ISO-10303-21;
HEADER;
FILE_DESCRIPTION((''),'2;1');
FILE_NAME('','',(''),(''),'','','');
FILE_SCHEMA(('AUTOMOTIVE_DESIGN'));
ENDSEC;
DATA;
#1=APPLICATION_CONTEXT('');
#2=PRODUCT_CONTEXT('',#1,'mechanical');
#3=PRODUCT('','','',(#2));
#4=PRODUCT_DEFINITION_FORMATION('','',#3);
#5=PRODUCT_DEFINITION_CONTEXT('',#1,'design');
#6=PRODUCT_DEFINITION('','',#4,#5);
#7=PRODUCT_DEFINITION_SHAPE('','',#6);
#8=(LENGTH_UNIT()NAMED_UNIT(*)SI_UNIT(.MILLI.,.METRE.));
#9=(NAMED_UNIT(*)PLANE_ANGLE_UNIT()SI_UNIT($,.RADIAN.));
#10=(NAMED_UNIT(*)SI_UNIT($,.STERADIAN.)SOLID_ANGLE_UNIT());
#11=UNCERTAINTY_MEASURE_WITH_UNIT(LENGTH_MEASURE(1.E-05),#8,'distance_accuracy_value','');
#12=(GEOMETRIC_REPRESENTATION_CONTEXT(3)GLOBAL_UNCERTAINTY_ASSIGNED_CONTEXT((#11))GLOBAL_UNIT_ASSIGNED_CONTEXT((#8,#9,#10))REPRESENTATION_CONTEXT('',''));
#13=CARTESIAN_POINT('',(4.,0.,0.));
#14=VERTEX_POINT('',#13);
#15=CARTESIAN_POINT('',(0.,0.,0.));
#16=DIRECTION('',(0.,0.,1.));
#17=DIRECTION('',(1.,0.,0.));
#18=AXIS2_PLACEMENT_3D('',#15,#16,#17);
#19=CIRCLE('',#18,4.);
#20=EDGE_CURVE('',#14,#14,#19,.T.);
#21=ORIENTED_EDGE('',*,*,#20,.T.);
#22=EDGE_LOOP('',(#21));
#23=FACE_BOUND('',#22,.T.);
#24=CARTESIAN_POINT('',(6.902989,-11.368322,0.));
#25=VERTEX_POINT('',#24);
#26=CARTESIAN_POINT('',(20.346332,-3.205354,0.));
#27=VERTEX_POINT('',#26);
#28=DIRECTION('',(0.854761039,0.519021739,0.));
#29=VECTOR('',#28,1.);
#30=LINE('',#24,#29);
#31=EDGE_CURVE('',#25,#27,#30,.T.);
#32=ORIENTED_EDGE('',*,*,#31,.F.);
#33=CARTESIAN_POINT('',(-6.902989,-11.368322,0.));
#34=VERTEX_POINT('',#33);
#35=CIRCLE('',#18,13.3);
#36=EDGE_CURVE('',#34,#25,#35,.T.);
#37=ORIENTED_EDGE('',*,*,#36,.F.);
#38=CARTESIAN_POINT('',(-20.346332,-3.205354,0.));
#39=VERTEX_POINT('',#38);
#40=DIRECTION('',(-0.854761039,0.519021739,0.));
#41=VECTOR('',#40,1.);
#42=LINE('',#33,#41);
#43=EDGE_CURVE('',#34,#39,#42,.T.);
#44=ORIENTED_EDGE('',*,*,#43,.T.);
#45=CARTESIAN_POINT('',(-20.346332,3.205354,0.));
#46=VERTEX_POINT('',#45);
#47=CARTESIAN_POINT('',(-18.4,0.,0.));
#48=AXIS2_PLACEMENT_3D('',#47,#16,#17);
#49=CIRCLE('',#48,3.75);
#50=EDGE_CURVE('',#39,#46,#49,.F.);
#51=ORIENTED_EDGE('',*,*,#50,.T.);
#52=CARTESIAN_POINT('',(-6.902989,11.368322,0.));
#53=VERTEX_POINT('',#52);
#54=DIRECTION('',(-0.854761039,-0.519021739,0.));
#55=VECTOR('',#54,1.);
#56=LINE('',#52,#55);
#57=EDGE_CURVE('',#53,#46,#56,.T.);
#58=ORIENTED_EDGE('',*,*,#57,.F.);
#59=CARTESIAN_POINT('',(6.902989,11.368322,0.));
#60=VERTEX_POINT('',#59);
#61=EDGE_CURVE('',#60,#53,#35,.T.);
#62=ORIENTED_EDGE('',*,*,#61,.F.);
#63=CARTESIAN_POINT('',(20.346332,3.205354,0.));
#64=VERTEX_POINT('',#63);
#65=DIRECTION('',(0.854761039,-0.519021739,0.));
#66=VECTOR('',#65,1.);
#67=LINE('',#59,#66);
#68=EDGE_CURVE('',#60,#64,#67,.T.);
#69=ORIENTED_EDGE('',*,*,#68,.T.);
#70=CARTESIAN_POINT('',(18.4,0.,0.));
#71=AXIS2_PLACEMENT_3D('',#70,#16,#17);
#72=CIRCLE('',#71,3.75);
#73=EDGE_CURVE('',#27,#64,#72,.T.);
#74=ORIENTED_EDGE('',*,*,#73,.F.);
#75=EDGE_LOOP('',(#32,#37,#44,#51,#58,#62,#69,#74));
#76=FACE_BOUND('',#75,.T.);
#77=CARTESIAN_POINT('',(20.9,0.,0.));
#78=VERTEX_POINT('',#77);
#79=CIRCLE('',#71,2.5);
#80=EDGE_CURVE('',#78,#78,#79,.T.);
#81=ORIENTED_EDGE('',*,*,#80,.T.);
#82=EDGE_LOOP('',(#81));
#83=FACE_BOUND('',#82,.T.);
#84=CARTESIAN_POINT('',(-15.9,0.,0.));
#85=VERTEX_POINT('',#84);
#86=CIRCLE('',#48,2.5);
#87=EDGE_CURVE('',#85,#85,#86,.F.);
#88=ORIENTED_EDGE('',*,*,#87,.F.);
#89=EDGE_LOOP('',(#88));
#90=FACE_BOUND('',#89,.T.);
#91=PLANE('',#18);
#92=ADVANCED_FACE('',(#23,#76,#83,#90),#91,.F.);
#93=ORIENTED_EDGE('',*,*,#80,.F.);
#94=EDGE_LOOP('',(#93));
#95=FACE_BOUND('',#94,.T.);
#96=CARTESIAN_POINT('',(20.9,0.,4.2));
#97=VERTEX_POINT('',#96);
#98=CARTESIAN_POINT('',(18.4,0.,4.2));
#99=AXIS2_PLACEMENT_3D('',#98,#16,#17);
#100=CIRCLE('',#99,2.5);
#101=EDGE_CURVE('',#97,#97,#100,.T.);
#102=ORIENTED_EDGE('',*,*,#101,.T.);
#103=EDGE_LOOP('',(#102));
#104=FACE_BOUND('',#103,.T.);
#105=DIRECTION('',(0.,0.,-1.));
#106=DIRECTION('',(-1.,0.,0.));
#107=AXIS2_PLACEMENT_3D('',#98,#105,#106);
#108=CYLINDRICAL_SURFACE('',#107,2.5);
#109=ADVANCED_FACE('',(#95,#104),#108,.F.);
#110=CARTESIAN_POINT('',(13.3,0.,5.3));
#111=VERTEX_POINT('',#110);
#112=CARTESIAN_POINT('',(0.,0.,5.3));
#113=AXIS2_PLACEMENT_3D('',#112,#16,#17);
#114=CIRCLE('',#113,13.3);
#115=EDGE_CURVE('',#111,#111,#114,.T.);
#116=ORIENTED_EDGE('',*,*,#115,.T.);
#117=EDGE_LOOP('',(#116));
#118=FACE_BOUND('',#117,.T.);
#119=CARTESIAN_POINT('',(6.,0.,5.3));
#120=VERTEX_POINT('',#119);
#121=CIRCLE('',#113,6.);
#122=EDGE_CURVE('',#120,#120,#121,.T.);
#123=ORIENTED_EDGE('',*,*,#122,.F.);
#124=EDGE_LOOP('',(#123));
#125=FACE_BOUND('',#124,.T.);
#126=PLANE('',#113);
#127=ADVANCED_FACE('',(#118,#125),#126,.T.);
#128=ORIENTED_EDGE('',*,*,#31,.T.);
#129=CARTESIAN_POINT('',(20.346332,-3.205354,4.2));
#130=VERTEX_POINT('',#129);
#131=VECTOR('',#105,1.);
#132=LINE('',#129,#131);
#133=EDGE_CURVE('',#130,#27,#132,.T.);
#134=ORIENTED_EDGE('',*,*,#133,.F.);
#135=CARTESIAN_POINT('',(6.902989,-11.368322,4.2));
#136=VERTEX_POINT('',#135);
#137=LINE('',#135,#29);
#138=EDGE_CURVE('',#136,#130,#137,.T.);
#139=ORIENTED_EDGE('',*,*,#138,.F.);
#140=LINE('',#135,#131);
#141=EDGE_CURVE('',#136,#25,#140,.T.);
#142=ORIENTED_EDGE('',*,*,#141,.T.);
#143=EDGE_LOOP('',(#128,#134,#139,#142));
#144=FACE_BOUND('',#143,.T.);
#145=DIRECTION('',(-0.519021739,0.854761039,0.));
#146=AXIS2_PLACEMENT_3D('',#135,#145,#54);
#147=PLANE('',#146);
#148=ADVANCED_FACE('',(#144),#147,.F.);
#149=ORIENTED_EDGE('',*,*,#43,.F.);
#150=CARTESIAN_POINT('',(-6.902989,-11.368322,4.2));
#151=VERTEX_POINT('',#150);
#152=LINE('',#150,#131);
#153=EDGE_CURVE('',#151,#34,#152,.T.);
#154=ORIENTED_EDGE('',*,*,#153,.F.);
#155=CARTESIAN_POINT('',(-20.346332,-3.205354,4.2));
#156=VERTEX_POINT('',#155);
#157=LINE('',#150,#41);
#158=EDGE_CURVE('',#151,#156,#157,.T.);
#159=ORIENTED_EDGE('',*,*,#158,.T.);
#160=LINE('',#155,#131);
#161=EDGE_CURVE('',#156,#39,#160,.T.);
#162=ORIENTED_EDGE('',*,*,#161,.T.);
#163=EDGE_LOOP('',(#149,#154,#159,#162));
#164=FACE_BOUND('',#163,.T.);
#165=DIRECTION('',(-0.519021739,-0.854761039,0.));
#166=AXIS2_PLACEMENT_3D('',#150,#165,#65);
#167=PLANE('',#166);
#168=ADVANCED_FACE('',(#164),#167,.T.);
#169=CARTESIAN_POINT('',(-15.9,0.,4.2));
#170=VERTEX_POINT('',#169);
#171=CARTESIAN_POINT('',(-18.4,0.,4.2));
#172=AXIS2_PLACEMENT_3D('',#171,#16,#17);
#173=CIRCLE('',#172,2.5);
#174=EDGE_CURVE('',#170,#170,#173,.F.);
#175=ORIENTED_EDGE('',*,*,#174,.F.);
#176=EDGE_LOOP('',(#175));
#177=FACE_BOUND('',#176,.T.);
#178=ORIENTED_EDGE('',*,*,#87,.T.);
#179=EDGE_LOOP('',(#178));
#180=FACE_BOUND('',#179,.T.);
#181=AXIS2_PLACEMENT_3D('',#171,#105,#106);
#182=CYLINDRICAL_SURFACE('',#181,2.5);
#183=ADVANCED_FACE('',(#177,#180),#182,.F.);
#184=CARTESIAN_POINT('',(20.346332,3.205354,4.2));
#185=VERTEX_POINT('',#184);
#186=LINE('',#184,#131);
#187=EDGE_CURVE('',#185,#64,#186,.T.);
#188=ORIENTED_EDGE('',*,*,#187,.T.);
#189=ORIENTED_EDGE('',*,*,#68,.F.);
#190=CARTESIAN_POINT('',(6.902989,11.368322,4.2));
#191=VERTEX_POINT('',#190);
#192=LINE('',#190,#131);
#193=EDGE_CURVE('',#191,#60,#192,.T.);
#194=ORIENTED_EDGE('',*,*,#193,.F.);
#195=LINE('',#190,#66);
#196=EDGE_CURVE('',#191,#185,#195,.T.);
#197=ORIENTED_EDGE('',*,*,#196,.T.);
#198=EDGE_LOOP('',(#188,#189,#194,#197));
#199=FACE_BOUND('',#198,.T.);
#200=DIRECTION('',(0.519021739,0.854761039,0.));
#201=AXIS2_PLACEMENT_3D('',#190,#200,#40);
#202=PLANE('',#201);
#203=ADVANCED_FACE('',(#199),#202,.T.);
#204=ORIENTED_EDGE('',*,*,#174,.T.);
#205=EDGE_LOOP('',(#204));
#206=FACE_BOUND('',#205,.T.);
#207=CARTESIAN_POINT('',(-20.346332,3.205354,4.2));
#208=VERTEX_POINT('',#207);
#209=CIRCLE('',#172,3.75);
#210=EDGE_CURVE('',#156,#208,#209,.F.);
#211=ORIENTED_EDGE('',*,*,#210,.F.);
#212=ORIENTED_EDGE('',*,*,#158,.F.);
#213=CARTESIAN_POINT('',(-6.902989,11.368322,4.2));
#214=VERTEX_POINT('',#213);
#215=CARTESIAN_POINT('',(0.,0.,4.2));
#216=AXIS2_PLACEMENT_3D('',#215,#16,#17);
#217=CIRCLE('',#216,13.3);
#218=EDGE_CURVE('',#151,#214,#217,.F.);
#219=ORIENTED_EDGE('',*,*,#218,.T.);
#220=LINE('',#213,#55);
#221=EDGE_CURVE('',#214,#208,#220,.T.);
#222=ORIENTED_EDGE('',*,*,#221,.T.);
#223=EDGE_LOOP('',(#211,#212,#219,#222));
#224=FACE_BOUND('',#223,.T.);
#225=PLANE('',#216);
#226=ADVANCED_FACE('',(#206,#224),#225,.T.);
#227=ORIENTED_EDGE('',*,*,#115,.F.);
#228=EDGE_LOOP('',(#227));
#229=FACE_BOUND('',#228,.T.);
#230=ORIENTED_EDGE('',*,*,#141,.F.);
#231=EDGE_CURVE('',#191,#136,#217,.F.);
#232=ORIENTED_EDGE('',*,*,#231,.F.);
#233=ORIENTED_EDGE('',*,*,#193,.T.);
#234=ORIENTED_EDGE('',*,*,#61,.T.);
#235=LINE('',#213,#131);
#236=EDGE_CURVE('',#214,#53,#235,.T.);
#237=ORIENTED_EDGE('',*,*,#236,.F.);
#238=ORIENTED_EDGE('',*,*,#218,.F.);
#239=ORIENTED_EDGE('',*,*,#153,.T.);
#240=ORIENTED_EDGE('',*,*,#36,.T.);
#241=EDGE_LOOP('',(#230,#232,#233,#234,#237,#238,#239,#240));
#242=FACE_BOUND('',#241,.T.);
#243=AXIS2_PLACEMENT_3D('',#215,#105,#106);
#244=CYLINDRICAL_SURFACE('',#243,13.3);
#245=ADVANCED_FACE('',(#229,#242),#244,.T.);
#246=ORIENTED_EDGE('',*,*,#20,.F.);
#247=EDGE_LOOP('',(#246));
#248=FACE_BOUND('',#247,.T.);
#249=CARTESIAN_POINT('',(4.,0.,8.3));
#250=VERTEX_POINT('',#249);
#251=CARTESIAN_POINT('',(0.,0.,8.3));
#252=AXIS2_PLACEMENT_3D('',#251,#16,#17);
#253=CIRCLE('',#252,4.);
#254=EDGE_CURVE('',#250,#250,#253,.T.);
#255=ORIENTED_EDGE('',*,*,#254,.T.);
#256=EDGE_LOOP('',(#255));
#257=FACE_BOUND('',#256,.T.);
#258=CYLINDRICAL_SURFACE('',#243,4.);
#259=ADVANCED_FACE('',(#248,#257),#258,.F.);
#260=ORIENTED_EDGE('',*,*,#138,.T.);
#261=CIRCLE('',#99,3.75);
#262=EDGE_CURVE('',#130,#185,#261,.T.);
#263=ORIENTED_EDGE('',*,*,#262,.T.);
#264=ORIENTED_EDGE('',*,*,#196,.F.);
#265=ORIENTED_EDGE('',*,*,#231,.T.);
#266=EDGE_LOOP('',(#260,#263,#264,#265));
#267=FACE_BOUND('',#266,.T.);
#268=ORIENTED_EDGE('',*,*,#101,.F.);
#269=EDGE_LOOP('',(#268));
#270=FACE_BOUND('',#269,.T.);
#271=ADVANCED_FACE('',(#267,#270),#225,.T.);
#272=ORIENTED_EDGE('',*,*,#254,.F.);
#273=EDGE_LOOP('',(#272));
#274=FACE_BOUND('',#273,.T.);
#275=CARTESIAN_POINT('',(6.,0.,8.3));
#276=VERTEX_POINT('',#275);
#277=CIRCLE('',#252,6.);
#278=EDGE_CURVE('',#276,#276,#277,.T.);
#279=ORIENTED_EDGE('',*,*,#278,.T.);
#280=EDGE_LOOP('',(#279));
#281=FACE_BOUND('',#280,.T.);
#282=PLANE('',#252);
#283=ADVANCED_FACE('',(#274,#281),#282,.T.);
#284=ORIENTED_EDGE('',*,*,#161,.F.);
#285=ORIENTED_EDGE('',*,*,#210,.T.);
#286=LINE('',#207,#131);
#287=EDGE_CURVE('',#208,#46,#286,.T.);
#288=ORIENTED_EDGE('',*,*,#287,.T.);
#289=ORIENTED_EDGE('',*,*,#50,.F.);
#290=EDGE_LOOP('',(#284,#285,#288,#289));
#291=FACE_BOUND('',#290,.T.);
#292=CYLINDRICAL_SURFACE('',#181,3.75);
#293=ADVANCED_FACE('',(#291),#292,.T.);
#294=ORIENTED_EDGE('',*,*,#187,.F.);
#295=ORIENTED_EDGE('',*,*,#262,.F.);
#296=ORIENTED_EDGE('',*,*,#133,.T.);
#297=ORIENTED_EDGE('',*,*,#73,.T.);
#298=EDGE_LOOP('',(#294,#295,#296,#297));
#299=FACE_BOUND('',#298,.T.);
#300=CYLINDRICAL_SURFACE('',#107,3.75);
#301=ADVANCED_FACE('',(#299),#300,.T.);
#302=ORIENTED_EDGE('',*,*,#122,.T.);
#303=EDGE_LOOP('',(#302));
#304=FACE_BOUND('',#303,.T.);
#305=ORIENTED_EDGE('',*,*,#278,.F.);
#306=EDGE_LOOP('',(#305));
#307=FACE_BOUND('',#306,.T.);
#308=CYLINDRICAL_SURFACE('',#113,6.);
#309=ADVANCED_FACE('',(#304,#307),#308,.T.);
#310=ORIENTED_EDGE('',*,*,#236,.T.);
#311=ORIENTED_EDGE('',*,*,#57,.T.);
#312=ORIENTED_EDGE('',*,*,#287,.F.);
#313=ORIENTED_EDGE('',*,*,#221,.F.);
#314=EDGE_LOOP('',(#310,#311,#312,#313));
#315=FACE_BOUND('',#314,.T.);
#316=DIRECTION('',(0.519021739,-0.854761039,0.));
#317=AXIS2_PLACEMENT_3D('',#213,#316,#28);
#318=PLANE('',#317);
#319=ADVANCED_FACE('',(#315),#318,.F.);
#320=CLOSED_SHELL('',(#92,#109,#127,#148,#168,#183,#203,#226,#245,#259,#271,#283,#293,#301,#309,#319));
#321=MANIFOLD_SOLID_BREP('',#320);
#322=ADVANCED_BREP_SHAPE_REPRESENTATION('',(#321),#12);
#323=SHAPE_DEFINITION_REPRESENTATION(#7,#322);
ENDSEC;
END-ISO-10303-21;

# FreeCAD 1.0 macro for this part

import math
import FreeCAD as App
import Part
import Sketcher

V = App.Vector

doc = App.newDocument("Part")
body = doc.addObject("PartDesign::Body", "Body")

# Sketch on XY plane
sketch1 = body.newObject("Sketcher::SketchObject", "Sketch")
sketch1.AttachmentSupport = (doc.getObject("XY_Plane"), [""])
sketch1.MapMode = "FlatFace"
sketch1.addGeometry([
    Part.ArcOfCircle(Part.Circle(V(-18.4, 0, 0), V(0, 0, 1), 3.8), math.radians(121), math.radians(239)),  # 0
    Part.LineSegment(V(-20.3, -3.2, 0), V(-6.9, -11.4, 0)),  # 1
    Part.ArcOfCircle(Part.Circle(V(0, 0, 0), V(0, 0, 1), 13.3), math.radians(-121), math.radians(-59)),  # 2
    Part.LineSegment(V(6.9, -11.4, 0), V(20.3, -3.2, 0)),  # 3
    Part.ArcOfCircle(Part.Circle(V(18.4, 0, 0), V(0, 0, 1), 3.8), math.radians(-59), math.radians(59)),  # 4
    Part.LineSegment(V(20.3, 3.2, 0), V(6.9, 11.4, 0)),  # 5
    Part.ArcOfCircle(Part.Circle(V(0, 0, 0), V(0, 0, 1), 13.3), math.radians(59), math.radians(121)),  # 6
    Part.LineSegment(V(-6.9, 11.4, 0), V(-20.3, 3.2, 0)),  # 7
    Part.Circle(V(-18.4, 0, 0), V(0, 0, 1), 2.5),  # 8
    Part.Circle(V(0, 0, 0), V(0, 0, 1), 4),  # 9
    Part.Circle(V(18.4, 0, 0), V(0, 0, 1), 2.5),  # 10
], False)
sketch1.addConstraint([
    Sketcher.Constraint("Tangent", 0, 2, 1, 1),
    Sketcher.Constraint("Tangent", 1, 2, 2, 1),
    Sketcher.Constraint("Tangent", 2, 2, 3, 1),
    Sketcher.Constraint("Tangent", 3, 2, 4, 1),
    Sketcher.Constraint("Tangent", 4, 2, 5, 1),
    Sketcher.Constraint("Tangent", 5, 2, 6, 1),
    Sketcher.Constraint("Tangent", 6, 2, 7, 1),
    Sketcher.Constraint("Tangent", 7, 2, 0, 1),
    Sketcher.Constraint("Coincident", 2, 3, -1, 1),
    Sketcher.Constraint("Coincident", 6, 3, -1, 1),
    Sketcher.Constraint("Coincident", 9, 3, -1, 1),
    Sketcher.Constraint("Coincident", 8, 3, 0, 3),
    Sketcher.Constraint("Coincident", 10, 3, 4, 3),
    Sketcher.Constraint("Equal", 0, 4),
    Sketcher.Constraint("Equal", 2, 6),
    Sketcher.Constraint("Equal", 8, 10),
    Sketcher.Constraint("Symmetric", 0, 3, 4, 3, -1, 1),
    Sketcher.Constraint("PointOnObject", 0, 3, -1),
    Sketcher.Constraint("Diameter", 8, 5.0),
    Sketcher.Constraint("Diameter", 9, 8.0),
    Sketcher.Constraint("Radius", 2, 13.3),
    Sketcher.Constraint("Radius", 0, 3.75),
    Sketcher.Constraint("DistanceX", 0, 3, -1, 1, 18.4),
])
pad1 = body.newObject("PartDesign::Pad", "Pad")
pad1.Profile = sketch1
pad1.Length = 4.2

# Sketch on XY plane
sketch2 = body.newObject("Sketcher::SketchObject", "Sketch001")
sketch2.AttachmentSupport = (doc.getObject("XY_Plane"), [""])
sketch2.MapMode = "FlatFace"
sketch2.addGeometry([
    Part.Circle(V(0, 0, 0), V(0, 0, 1), 13.3),
    Part.Circle(V(0, 0, 0), V(0, 0, 1), 4),
], False)
sketch2.addConstraint([
    Sketcher.Constraint("Coincident", 0, 3, -1, 1),
    Sketcher.Constraint("Coincident", 1, 3, -1, 1),
    Sketcher.Constraint("Diameter", 1, 8.0),
    Sketcher.Constraint("Diameter", 0, 26.6),
])
pad2 = body.newObject("PartDesign::Pad", "Pad001")
pad2.Profile = sketch2
pad2.Length = 8.3

# Sketch on XY plane
sketch3 = body.newObject("Sketcher::SketchObject", "Sketch002")
sketch3.AttachmentSupport = (doc.getObject("XY_Plane"), [""])
sketch3.MapMode = "FlatFace"
sketch3.AttachmentOffset = App.Placement(V(0, 0, 5.3), App.Rotation())
sketch3.addGeometry([
    Part.Circle(V(0, 0, 0), V(0, 0, 1), 13),
    Part.Circle(V(0, 0, 0), V(0, 0, 1), 6),
], False)
sketch3.addConstraint([
    Sketcher.Constraint("Coincident", 0, 3, -1, 1),
    Sketcher.Constraint("Coincident", 1, 3, -1, 1),
    Sketcher.Constraint("Diameter", 1, 12.0),
    Sketcher.Constraint("Diameter", 0, 26.6),
])
pocket1 = body.newObject("PartDesign::Pocket", "Pocket")
pocket1.Profile = sketch3
pocket1.Length = 3
pocket1.Reversed = True

doc.recompute()
